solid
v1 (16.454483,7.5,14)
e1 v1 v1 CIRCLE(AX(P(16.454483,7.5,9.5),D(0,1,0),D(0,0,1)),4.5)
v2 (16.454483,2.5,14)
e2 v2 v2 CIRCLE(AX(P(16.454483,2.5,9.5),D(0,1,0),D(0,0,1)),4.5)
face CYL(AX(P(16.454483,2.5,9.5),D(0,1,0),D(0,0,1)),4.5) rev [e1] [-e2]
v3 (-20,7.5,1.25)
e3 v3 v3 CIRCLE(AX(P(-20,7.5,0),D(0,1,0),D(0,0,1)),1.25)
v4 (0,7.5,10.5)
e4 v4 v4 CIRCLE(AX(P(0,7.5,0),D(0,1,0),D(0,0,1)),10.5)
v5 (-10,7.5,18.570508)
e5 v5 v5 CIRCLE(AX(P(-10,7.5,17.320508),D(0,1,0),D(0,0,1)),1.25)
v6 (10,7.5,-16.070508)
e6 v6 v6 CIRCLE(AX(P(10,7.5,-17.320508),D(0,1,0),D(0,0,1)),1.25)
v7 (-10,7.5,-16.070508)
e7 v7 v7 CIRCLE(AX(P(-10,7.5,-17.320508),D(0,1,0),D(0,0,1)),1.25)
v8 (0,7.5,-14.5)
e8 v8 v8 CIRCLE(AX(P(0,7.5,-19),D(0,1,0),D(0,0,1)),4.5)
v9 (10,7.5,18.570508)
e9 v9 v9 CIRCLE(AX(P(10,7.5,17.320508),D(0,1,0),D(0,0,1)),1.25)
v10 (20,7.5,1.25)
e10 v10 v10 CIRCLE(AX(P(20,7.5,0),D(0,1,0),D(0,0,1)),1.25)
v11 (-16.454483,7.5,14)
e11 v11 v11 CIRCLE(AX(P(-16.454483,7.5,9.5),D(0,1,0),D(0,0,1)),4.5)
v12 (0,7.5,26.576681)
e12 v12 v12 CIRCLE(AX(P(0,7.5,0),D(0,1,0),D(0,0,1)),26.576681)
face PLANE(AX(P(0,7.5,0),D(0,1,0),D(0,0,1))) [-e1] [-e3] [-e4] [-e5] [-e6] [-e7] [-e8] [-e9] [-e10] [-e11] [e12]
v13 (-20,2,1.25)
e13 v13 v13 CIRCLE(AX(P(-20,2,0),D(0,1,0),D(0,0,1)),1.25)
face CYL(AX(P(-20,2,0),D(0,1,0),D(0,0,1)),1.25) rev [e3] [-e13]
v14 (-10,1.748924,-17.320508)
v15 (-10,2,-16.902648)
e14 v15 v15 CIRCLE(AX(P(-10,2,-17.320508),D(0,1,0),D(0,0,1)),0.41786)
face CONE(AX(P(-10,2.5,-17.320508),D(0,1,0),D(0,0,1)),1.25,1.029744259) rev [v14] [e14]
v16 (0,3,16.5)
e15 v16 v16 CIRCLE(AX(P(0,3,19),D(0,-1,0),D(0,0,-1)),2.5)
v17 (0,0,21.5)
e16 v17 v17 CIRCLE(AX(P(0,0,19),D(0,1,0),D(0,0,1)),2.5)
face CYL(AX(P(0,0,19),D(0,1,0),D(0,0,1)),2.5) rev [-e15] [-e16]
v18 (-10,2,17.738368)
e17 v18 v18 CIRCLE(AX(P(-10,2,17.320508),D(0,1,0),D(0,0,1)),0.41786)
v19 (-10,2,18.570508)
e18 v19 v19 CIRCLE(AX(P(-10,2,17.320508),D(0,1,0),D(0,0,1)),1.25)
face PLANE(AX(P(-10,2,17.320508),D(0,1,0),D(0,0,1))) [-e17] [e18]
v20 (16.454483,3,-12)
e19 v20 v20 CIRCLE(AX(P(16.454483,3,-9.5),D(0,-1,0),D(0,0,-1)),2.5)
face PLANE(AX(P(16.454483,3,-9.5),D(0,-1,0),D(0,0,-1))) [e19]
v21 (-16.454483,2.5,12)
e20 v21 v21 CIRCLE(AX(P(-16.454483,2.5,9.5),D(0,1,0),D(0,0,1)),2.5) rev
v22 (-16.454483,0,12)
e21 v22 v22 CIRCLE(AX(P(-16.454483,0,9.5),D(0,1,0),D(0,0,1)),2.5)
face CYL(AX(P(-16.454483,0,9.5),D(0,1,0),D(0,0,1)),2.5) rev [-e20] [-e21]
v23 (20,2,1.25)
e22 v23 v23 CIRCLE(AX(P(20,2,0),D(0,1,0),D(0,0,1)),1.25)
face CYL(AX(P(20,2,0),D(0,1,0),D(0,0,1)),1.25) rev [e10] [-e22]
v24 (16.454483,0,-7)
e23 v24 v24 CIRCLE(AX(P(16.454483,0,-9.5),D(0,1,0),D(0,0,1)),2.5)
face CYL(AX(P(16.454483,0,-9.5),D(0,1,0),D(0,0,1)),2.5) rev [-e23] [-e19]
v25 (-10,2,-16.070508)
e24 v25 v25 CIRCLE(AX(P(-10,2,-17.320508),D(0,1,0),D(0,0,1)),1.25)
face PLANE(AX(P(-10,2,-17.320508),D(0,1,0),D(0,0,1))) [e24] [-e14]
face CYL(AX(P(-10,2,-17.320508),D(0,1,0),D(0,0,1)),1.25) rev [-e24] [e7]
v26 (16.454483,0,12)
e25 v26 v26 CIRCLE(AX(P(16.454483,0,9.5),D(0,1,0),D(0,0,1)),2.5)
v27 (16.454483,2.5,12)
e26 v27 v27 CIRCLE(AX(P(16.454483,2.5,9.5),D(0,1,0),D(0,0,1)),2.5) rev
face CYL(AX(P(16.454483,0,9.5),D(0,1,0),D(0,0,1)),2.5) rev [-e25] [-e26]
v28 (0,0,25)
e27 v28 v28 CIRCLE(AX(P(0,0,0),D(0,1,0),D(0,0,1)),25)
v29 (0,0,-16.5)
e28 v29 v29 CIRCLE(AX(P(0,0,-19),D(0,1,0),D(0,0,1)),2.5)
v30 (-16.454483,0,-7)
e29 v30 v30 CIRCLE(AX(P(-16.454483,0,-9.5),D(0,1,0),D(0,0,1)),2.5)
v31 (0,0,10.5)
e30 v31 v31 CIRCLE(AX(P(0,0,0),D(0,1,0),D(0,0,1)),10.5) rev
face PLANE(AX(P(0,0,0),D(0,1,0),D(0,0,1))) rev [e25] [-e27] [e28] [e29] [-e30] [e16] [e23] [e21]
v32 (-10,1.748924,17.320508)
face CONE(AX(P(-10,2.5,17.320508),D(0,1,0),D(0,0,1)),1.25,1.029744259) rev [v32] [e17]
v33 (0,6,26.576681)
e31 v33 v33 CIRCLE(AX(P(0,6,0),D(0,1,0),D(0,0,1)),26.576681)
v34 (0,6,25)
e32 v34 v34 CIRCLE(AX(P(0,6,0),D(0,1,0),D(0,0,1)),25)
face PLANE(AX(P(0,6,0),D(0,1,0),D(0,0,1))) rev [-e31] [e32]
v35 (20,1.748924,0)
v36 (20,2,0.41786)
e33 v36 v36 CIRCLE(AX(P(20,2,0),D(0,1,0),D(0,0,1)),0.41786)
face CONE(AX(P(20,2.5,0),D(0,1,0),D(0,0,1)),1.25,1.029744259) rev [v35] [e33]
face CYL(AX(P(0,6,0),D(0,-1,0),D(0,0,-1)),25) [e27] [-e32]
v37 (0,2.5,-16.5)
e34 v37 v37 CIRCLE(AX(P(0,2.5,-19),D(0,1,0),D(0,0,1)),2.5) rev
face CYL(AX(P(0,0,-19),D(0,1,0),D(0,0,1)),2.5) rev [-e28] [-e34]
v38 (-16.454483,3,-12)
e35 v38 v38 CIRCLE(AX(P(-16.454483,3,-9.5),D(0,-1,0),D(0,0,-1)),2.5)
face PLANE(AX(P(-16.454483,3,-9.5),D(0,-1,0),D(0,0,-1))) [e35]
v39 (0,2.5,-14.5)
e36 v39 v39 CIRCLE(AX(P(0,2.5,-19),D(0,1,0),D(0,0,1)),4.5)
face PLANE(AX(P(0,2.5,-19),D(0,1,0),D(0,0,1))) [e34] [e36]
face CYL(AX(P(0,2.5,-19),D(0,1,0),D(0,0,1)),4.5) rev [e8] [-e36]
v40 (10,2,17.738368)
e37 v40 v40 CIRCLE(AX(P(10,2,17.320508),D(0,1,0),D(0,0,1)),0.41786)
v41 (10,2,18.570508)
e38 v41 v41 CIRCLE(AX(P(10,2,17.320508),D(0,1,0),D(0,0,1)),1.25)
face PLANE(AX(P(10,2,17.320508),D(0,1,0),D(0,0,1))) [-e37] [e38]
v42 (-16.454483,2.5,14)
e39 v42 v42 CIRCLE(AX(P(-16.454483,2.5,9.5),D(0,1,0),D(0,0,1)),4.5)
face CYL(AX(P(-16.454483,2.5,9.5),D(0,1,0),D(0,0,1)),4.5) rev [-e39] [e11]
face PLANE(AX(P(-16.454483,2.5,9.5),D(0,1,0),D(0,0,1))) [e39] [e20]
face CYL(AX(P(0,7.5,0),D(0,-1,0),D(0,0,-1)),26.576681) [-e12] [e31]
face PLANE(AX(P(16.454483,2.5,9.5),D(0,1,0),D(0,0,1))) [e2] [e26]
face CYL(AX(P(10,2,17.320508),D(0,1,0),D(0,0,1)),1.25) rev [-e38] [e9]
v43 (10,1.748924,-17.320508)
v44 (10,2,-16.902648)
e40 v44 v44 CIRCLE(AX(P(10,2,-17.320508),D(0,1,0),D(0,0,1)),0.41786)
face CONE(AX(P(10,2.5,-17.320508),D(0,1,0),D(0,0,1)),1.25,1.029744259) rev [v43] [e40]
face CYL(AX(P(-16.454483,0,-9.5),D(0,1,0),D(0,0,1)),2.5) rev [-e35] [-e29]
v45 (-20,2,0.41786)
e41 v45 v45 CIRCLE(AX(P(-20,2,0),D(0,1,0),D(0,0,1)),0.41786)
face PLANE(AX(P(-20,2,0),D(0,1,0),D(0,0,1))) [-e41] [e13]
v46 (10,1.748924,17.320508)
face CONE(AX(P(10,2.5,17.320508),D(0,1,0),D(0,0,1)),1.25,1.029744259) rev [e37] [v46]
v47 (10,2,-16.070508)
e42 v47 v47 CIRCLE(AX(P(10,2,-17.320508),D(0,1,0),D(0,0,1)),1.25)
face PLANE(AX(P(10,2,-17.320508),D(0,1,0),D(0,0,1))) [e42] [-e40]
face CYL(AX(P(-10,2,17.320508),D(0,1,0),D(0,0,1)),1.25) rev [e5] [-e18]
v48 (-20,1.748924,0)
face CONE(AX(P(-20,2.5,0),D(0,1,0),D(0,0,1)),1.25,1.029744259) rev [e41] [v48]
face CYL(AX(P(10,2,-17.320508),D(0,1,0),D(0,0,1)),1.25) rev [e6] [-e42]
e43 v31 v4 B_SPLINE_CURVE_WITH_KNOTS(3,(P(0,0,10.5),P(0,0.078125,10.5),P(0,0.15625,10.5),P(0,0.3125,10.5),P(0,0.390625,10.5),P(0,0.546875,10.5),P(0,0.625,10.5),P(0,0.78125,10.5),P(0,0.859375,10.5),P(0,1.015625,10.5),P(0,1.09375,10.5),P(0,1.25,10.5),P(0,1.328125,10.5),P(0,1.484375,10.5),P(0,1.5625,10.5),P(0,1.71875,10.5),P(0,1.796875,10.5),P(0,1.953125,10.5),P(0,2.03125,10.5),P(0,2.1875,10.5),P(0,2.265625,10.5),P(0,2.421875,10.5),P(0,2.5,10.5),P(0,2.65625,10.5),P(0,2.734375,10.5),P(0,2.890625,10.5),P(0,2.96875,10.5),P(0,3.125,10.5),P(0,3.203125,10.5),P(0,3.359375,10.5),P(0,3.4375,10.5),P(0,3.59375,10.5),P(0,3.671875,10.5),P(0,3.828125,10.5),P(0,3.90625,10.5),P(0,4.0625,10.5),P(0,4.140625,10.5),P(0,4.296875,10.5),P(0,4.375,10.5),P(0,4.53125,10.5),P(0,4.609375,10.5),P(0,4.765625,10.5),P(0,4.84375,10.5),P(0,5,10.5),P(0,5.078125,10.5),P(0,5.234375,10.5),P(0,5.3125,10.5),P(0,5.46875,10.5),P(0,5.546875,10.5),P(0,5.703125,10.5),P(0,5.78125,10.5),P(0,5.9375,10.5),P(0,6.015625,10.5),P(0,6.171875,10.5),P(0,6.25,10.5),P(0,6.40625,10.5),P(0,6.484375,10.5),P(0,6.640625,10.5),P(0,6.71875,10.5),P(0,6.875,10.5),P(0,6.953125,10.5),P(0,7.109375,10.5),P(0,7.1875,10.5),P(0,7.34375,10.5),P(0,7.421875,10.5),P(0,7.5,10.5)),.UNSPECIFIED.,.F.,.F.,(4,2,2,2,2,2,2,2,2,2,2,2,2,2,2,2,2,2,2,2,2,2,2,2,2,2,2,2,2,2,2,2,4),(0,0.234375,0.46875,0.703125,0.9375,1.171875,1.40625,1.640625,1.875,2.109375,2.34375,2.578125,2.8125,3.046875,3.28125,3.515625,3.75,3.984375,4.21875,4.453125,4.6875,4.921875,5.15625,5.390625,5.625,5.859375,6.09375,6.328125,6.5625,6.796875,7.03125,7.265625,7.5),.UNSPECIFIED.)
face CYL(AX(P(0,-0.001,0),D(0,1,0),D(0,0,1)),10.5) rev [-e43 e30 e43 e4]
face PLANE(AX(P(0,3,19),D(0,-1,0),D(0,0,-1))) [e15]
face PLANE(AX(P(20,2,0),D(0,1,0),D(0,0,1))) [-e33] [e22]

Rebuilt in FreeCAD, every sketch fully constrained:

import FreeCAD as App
import Part
import Sketcher

V = App.Vector

doc = App.newDocument("Part")
body = doc.addObject("PartDesign::Body", "Body")

# Sketch on XZ plane
sketch1 = body.newObject("Sketcher::SketchObject", "Sketch")
sketch1.AttachmentSupport = (doc.getObject("XZ_Plane"), [""])
sketch1.MapMode = "FlatFace"
sketch1.addGeometry(Part.Circle(V(0, 0, 0), V(0, 0, 1), 25), False)
sketch1.addConstraint(Sketcher.Constraint("Coincident", 0, 3, -1, 1))
sketch1.addConstraint(Sketcher.Constraint("Diameter", 0, 50.0))
pad1 = body.newObject("PartDesign::Pad", "Pad")
pad1.Profile = sketch1
pad1.Length = 6
pad1.Reversed = True

# Sketch on XZ plane
sketch2 = body.newObject("Sketcher::SketchObject", "Sketch001")
sketch2.AttachmentSupport = (doc.getObject("XZ_Plane"), [""])
sketch2.MapMode = "FlatFace"
sketch2.AttachmentOffset = App.Placement(V(0, 0, -6), App.Rotation())
sketch2.addGeometry(Part.Circle(V(0, 0, 0), V(0, 0, 1), 10), False)
sketch2.addConstraint(Sketcher.Constraint("Coincident", 0, 3, -1, 1))
sketch2.addConstraint(Sketcher.Constraint("Diameter", 0, 21.0))
pocket1 = body.newObject("PartDesign::Pocket", "Pocket")
pocket1.Profile = sketch2
pocket1.Type = "UpToFirst"
pocket1.Reversed = True

# Sketch on XZ plane
sketch3 = body.newObject("Sketcher::SketchObject", "Sketch002")
sketch3.AttachmentSupport = (doc.getObject("XZ_Plane"), [""])
sketch3.MapMode = "FlatFace"
sketch3.AttachmentOffset = App.Placement(V(0, 0, -6), App.Rotation())
sketch3.addGeometry(Part.Circle(V(0, -19, 0), V(0, 0, 1), 2.5), False)
sketch3.addGeometry(Part.Circle(V(16.5, -9.5, 0), V(0, 0, 1), 2.5), False)
sketch3.addGeometry(Part.Circle(V(16.5, 9.5, 0), V(0, 0, 1), 2.5), False)
sketch3.addGeometry(Part.Circle(V(0, 19, 0), V(0, 0, 1), 2.5), False)
sketch3.addGeometry(Part.Circle(V(-16.5, 9.5, 0), V(0, 0, 1), 2.5), False)
sketch3.addGeometry(Part.Circle(V(-16.5, -9.5, 0), V(0, 0, 1), 2.5), False)
sketch3.addConstraint(Sketcher.Constraint("Equal", 0, 1))
sketch3.addConstraint(Sketcher.Constraint("Equal", 1, 2))
sketch3.addConstraint(Sketcher.Constraint("Equal", 2, 3))
sketch3.addConstraint(Sketcher.Constraint("Equal", 3, 4))
sketch3.addConstraint(Sketcher.Constraint("Equal", 4, 5))
sketch3.addConstraint(Sketcher.Constraint("Symmetric", 0, 3, 3, 3, -1, 1))
sketch3.addConstraint(Sketcher.Constraint("Symmetric", 1, 3, 4, 3, -1, 1))
sketch3.addConstraint(Sketcher.Constraint("Symmetric", 2, 3, 5, 3, -1, 1))
sketch3.addConstraint(Sketcher.Constraint("Symmetric", 2, 3, 4, 3, -2))
sketch3.addConstraint(Sketcher.Constraint("PointOnObject", 0, 3, -2))
sketch3.addConstraint(Sketcher.Constraint("Diameter", 0, 5.0))
sketch3.addConstraint(Sketcher.Constraint("DistanceY", 0, 3, -1, 1, 19.0))
sketch3.addConstraint(Sketcher.Constraint("DistanceY", 1, 3, 2, 3, 19.0))
sketch3.addConstraint(Sketcher.Constraint("DistanceX", -1, 1, 1, 3, 16.454483))
pocket2 = body.newObject("PartDesign::Pocket", "Pocket001")
pocket2.Profile = sketch3
pocket2.Type = "ThroughAll"
pocket2.Reversed = True

# Sketch on XZ plane
sketch4 = body.newObject("Sketcher::SketchObject", "Sketch003")
sketch4.AttachmentSupport = (doc.getObject("XZ_Plane"), [""])
sketch4.MapMode = "FlatFace"
sketch4.AttachmentOffset = App.Placement(V(0, 0, -6), App.Rotation())
sketch4.addGeometry(Part.Circle(V(20, 0, 0), V(0, 0, 1), 1.2), False)
sketch4.addGeometry(Part.Circle(V(10, 17.3, 0), V(0, 0, 1), 1.2), False)
sketch4.addGeometry(Part.Circle(V(-10, 17.3, 0), V(0, 0, 1), 1.2), False)
sketch4.addGeometry(Part.Circle(V(-20, 0, 0), V(0, 0, 1), 1.2), False)
sketch4.addGeometry(Part.Circle(V(-10, -17.3, 0), V(0, 0, 1), 1.2), False)
sketch4.addGeometry(Part.Circle(V(10, -17.3, 0), V(0, 0, 1), 1.2), False)
sketch4.addConstraint(Sketcher.Constraint("Equal", 0, 1))
sketch4.addConstraint(Sketcher.Constraint("Equal", 1, 2))
sketch4.addConstraint(Sketcher.Constraint("Equal", 2, 3))
sketch4.addConstraint(Sketcher.Constraint("Equal", 3, 4))
sketch4.addConstraint(Sketcher.Constraint("Equal", 4, 5))
sketch4.addConstraint(Sketcher.Constraint("Symmetric", 0, 3, 3, 3, -1, 1))
sketch4.addConstraint(Sketcher.Constraint("Symmetric", 1, 3, 4, 3, -1, 1))
sketch4.addConstraint(Sketcher.Constraint("Symmetric", 2, 3, 5, 3, -1, 1))
sketch4.addConstraint(Sketcher.Constraint("Symmetric", 1, 3, 2, 3, -2))
sketch4.addConstraint(Sketcher.Constraint("PointOnObject", 0, 3, -1))
sketch4.addConstraint(Sketcher.Constraint("Diameter", 0, 2.5))
sketch4.addConstraint(Sketcher.Constraint("DistanceX", -1, 1, 0, 3, 20.0))
sketch4.addConstraint(Sketcher.Constraint("DistanceX", -1, 1, 1, 3, 10.0))
sketch4.addConstraint(Sketcher.Constraint("DistanceY", -1, 1, 1, 3, 17.320508))
pocket3 = body.newObject("PartDesign::Pocket", "Pocket002")
pocket3.Profile = sketch4
pocket3.Length = 4
pocket3.Reversed = True

# Sketch on XZ plane
sketch5 = body.newObject("Sketcher::SketchObject", "Sketch004")
sketch5.AttachmentSupport = (doc.getObject("XZ_Plane"), [""])
sketch5.MapMode = "FlatFace"
sketch5.AttachmentOffset = App.Placement(V(0, 0, -7.5), App.Rotation())
sketch5.addGeometry(Part.Circle(V(0, 0, 0), V(0, 0, 1), 26.6), False)
sketch5.addGeometry(Part.Circle(V(-10, -17.3, 0), V(0, 0, 1), 1.2), False)
sketch5.addGeometry(Part.Circle(V(-20, 0, 0), V(0, 0, 1), 1.2), False)
sketch5.addGeometry(Part.Circle(V(-10, 17.3, 0), V(0, 0, 1), 1.2), False)
sketch5.addGeometry(Part.Circle(V(10, -17.3, 0), V(0, 0, 1), 1.2), False)
sketch5.addGeometry(Part.Circle(V(20, 0, 0), V(0, 0, 1), 1.2), False)
sketch5.addGeometry(Part.Circle(V(0, 0, 0), V(0, 0, 1), 10.5), False)
sketch5.addGeometry(Part.Circle(V(10, 17.3, 0), V(0, 0, 1), 1.2), False)
sketch5.addConstraint(Sketcher.Constraint("Coincident", 0, 3, -1, 1))
sketch5.addConstraint(Sketcher.Constraint("Coincident", 6, 3, -1, 1))
sketch5.addConstraint(Sketcher.Constraint("Equal", 1, 2))
sketch5.addConstraint(Sketcher.Constraint("Equal", 2, 3))
sketch5.addConstraint(Sketcher.Constraint("Equal", 3, 4))
sketch5.addConstraint(Sketcher.Constraint("Equal", 4, 5))
sketch5.addConstraint(Sketcher.Constraint("Equal", 5, 7))
sketch5.addConstraint(Sketcher.Constraint("Symmetric", 3, 3, 4, 3, -1, 1))
sketch5.addConstraint(Sketcher.Constraint("Symmetric", 2, 3, 5, 3, -1, 1))
sketch5.addConstraint(Sketcher.Constraint("Symmetric", 1, 3, 7, 3, -1, 1))
sketch5.addConstraint(Sketcher.Constraint("Symmetric", 1, 3, 4, 3, -2))
sketch5.addConstraint(Sketcher.Constraint("PointOnObject", 2, 3, -1))
sketch5.addConstraint(Sketcher.Constraint("Diameter", 6, 21.0))
sketch5.addConstraint(Sketcher.Constraint("Diameter", 1, 2.5))
sketch5.addConstraint(Sketcher.Constraint("DistanceX", 1, 3, -1, 1, 10.0))
sketch5.addConstraint(Sketcher.Constraint("DistanceX", 2, 3, -1, 1, 20.0))
sketch5.addConstraint(Sketcher.Constraint("Diameter", 0, 53.153363))
sketch5.addConstraint(Sketcher.Constraint("DistanceY", 1, 3, -1, 1, 17.320508))
pad2 = body.newObject("PartDesign::Pad", "Pad001")
pad2.Profile = sketch5
pad2.Length = 1.5

# Sketch on XZ plane
sketch6 = body.newObject("Sketcher::SketchObject", "Sketch005")
sketch6.AttachmentSupport = (doc.getObject("XZ_Plane"), [""])
sketch6.MapMode = "FlatFace"
sketch6.AttachmentOffset = App.Placement(V(0, 0, -7.5), App.Rotation())
sketch6.addGeometry(Part.Circle(V(16.5, 9.5, 0), V(0, 0, 1), 4.5), False)
sketch6.addGeometry(Part.Circle(V(-16.5, 9.5, 0), V(0, 0, 1), 4.5), False)
sketch6.addGeometry(Part.Circle(V(0, -19, 0), V(0, 0, 1), 4.5), False)
sketch6.addConstraint(Sketcher.Constraint("Equal", 0, 1))
sketch6.addConstraint(Sketcher.Constraint("Equal", 1, 2))
sketch6.addConstraint(Sketcher.Constraint("Symmetric", 0, 3, 1, 3, -2))
sketch6.addConstraint(Sketcher.Constraint("PointOnObject", 2, 3, -2))
sketch6.addConstraint(Sketcher.Constraint("Diameter", 0, 9.0))
sketch6.addConstraint(Sketcher.Constraint("DistanceY", 2, 3, -1, 1, 19.0))
sketch6.addConstraint(Sketcher.Constraint("DistanceY", -1, 1, 0, 3, 9.5))
sketch6.addConstraint(Sketcher.Constraint("DistanceX", -1, 1, 0, 3, 16.454483))
pocket4 = body.newObject("PartDesign::Pocket", "Pocket003")
pocket4.Profile = sketch6
pocket4.Length = 5
pocket4.Reversed = True

# Sketch on XZ plane
sketch7 = body.newObject("Sketcher::SketchObject", "Sketch006")
sketch7.AttachmentSupport = (doc.getObject("XZ_Plane"), [""])
sketch7.MapMode = "FlatFace"
sketch7.AttachmentOffset = App.Placement(V(0, 0, -6), App.Rotation())
sketch7.addGeometry(Part.Circle(V(0, 19, 0), V(0, 0, 1), 2.5), False)
sketch7.addGeometry(Part.Circle(V(16.5, -9.5, 0), V(0, 0, 1), 2.5), False)
sketch7.addGeometry(Part.Circle(V(-16.5, -9.5, 0), V(0, 0, 1), 2.5), False)
sketch7.addConstraint(Sketcher.Constraint("Equal", 0, 1))
sketch7.addConstraint(Sketcher.Constraint("Equal", 1, 2))
sketch7.addConstraint(Sketcher.Constraint("Symmetric", 1, 3, 2, 3, -2))
sketch7.addConstraint(Sketcher.Constraint("PointOnObject", 0, 3, -2))
sketch7.addConstraint(Sketcher.Constraint("Diameter", 0, 5.0))
sketch7.addConstraint(Sketcher.Constraint("DistanceY", -1, 1, 0, 3, 19.0))
sketch7.addConstraint(Sketcher.Constraint("DistanceY", 1, 3, -1, 1, 9.5))
sketch7.addConstraint(Sketcher.Constraint("DistanceX", -1, 1, 1, 3, 16.454483))
pad3 = body.newObject("PartDesign::Pad", "Pad002")
pad3.Profile = sketch7
pad3.Length = 3

# Sketch on XZ plane
sketch8 = body.newObject("Sketcher::SketchObject", "Sketch007")
sketch8.AttachmentSupport = (doc.getObject("XZ_Plane"), [""])
sketch8.MapMode = "FlatFace"
sketch8.AttachmentOffset = App.Placement(V(0, 0, -7.5), App.Rotation())
sketch8.addGeometry(Part.Circle(V(-10, -17.3, 0), V(0, 0, 1), 1.2), False)
sketch8.addGeometry(Part.Circle(V(-20, 0, 0), V(0, 0, 1), 1.2), False)
sketch8.addGeometry(Part.Circle(V(-10, 17.3, 0), V(0, 0, 1), 1.2), False)
sketch8.addGeometry(Part.Circle(V(10, -17.3, 0), V(0, 0, 1), 1.2), False)
sketch8.addGeometry(Part.Circle(V(20, 0, 0), V(0, 0, 1), 1.2), False)
sketch8.addGeometry(Part.Circle(V(10, 17.3, 0), V(0, 0, 1), 1.2), False)
sketch8.addConstraint(Sketcher.Constraint("Equal", 0, 1))
sketch8.addConstraint(Sketcher.Constraint("Equal", 1, 2))
sketch8.addConstraint(Sketcher.Constraint("Equal", 2, 3))
sketch8.addConstraint(Sketcher.Constraint("Equal", 3, 4))
sketch8.addConstraint(Sketcher.Constraint("Equal", 4, 5))
sketch8.addConstraint(Sketcher.Constraint("Symmetric", 2, 3, 3, 3, -1, 1))
sketch8.addConstraint(Sketcher.Constraint("Symmetric", 1, 3, 4, 3, -1, 1))
sketch8.addConstraint(Sketcher.Constraint("Symmetric", 0, 3, 5, 3, -1, 1))
sketch8.addConstraint(Sketcher.Constraint("Symmetric", 0, 3, 3, 3, -2))
sketch8.addConstraint(Sketcher.Constraint("PointOnObject", 1, 3, -1))
sketch8.addConstraint(Sketcher.Constraint("Diameter", 0, 2.5))
sketch8.addConstraint(Sketcher.Constraint("DistanceX", 0, 3, -1, 1, 10.0))
sketch8.addConstraint(Sketcher.Constraint("DistanceX", 1, 3, -1, 1, 20.0))
sketch8.addConstraint(Sketcher.Constraint("DistanceY", 0, 3, -1, 1, 17.320508))
doc.recompute()
hole = body.newObject("PartDesign::Hole", "Hole")
hole.Profile = sketch8
hole.ThreadType = "None"
hole.Diameter = 2.5
hole.DepthType = "Dimension"
hole.Depth = 5
hole.DrillPoint = "Angled"
hole.DrillPointAngle = 118
hole.Reversed = True

doc.recompute()
